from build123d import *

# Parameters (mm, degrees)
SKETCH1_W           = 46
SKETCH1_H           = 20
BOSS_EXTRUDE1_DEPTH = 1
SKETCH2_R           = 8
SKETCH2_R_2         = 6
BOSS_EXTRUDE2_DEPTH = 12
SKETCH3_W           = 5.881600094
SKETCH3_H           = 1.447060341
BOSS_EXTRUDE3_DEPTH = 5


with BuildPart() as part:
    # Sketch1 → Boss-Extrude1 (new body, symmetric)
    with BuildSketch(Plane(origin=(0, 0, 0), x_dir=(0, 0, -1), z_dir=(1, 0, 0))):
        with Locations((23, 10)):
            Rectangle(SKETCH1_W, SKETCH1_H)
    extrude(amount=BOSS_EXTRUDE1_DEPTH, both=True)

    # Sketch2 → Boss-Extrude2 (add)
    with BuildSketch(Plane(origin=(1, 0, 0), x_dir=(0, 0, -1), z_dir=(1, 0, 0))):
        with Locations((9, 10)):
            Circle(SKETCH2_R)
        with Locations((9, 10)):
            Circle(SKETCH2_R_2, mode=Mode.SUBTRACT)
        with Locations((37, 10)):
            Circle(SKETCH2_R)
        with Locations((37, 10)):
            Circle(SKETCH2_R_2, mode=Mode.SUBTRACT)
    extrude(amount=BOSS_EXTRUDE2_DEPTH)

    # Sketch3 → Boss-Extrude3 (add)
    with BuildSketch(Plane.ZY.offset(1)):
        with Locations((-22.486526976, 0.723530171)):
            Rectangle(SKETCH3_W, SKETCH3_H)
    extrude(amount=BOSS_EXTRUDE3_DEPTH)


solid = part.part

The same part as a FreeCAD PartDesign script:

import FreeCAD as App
import Part
import Sketcher

V = App.Vector
Q = App.Units.Quantity


def add_polygon(sketch, points):
    """Adds a closed chain of lines whose ends are joined by coincident constraints."""
    first, n = sketch.GeometryCount, len(points)
    for a, b in zip(points, points[1:] + points[:1]):
        sketch.addGeometry(Part.LineSegment(App.Vector(*a, 0), App.Vector(*b, 0)), False)
    for i in range(n):
        sketch.addConstraint(Sketcher.Constraint("Coincident", first + i, 2, first + (i + 1) % n, 1))

doc = App.newDocument("Part")
body = doc.addObject("PartDesign::Body", "Body")

# Sketch on YZ plane
sketch1 = body.newObject("Sketcher::SketchObject", "Sketch")
sketch1.AttachmentSupport = (doc.getObject("YZ_Plane"), [""])
sketch1.MapMode = "FlatFace"
add_polygon(sketch1, [(20, 0), (0, 0), (0, -46), (20, -46)])  # lines 0-3
sketch1.addConstraint(Sketcher.Constraint("Horizontal", 0))
sketch1.addConstraint(Sketcher.Constraint("Vertical", 1))
sketch1.addConstraint(Sketcher.Constraint("Horizontal", 2))
sketch1.addConstraint(Sketcher.Constraint("Vertical", 3))
sketch1.addConstraint(Sketcher.Constraint("Coincident", 0, 2, -1, 1))
sketch1.addConstraint(Sketcher.Constraint("DistanceX", 0, 2, 0, 1, Q("20 mm")))
sketch1.addConstraint(Sketcher.Constraint("DistanceY", 1, 2, 1, 1, Q("46 mm")))
pad1 = body.newObject("PartDesign::Pad", "Pad")
pad1.Profile = sketch1
pad1.Length = 2
pad1.Midplane = True

# Sketch on YZ plane
sketch2 = body.newObject("Sketcher::SketchObject", "Sketch001")
sketch2.AttachmentSupport = (doc.getObject("YZ_Plane"), [""])
sketch2.MapMode = "FlatFace"
sketch2.AttachmentOffset = App.Placement(V(0, 0, 1), App.Rotation())
sketch2.addGeometry(Part.Circle(V(10, -9, 0), V(0, 0, 1), 8), False)
sketch2.addGeometry(Part.Circle(V(10, -9, 0), V(0, 0, 1), 6), False)
sketch2.addGeometry(Part.Circle(V(10, -37, 0), V(0, 0, 1), 8), False)
sketch2.addGeometry(Part.Circle(V(10, -37, 0), V(0, 0, 1), 6), False)
sketch2.addConstraint(Sketcher.Constraint("Coincident", 1, 3, 0, 3))
sketch2.addConstraint(Sketcher.Constraint("Coincident", 3, 3, 2, 3))
sketch2.addConstraint(Sketcher.Constraint("Equal", 0, 2))
sketch2.addConstraint(Sketcher.Constraint("Equal", 1, 3))
sketch2.addConstraint(Sketcher.Constraint("Vertical", 1, 3, 2, 3))
sketch2.addConstraint(Sketcher.Constraint("Diameter", 0, Q("16 mm")))
sketch2.addConstraint(Sketcher.Constraint("Diameter", 1, Q("12 mm")))
sketch2.addConstraint(Sketcher.Constraint("DistanceX", -1, 1, 0, 3, Q("10 mm")))
sketch2.addConstraint(Sketcher.Constraint("DistanceY", 0, 3, -1, 1, Q("9 mm")))
sketch2.addConstraint(Sketcher.Constraint("DistanceY", 2, 3, -1, 1, Q("37 mm")))
pad2 = body.newObject("PartDesign::Pad", "Pad001")
pad2.Profile = sketch2
pad2.Length = 12

# Sketch on YZ plane
sketch3 = body.newObject("Sketcher::SketchObject", "Sketch002")
sketch3.AttachmentSupport = (doc.getObject("YZ_Plane"), [""])
sketch3.MapMode = "FlatFace"
sketch3.AttachmentOffset = App.Placement(V(0, 0, -1), App.Rotation())
add_polygon(sketch3, [(1.4, -25.4), (0, -25.4), (0, -19.5), (1.4, -19.5)])  # lines 0-3
sketch3.addConstraint(Sketcher.Constraint("Horizontal", 0))
sketch3.addConstraint(Sketcher.Constraint("Vertical", 1))
sketch3.addConstraint(Sketcher.Constraint("Horizontal", 2))
sketch3.addConstraint(Sketcher.Constraint("Vertical", 3))
sketch3.addConstraint(Sketcher.Constraint("PointOnObject", 0, 2, -2))
sketch3.addConstraint(Sketcher.Constraint("DistanceY", 1, 1, 1, 2, Q("5.8816 mm")))
sketch3.addConstraint(Sketcher.Constraint("DistanceX", 0, 2, 0, 1, Q("1.44706 mm")))
sketch3.addConstraint(Sketcher.Constraint("DistanceY", 0, 2, -1, 1, Q("25.427327 mm")))
pad3 = body.newObject("PartDesign::Pad", "Pad002")
pad3.Profile = sketch3
pad3.Length = 5
pad3.Reversed = True

doc.recompute()
